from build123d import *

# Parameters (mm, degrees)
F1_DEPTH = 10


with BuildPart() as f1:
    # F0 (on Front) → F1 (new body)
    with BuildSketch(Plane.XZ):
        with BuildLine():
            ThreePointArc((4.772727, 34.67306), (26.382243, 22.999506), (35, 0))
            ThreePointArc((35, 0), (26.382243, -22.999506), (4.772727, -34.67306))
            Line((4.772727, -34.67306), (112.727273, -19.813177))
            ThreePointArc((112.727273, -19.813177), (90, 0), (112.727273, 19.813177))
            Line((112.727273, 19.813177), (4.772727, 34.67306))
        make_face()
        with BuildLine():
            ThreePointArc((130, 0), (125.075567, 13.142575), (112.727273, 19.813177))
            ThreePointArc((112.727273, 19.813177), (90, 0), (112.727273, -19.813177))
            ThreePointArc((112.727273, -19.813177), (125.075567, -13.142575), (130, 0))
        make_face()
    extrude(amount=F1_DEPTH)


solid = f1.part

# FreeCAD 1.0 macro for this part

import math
import FreeCAD as App
import Part
import Sketcher

V = App.Vector
Q = App.Units.Quantity

doc = App.newDocument("Part")
body = doc.addObject("PartDesign::Body", "Body")

# Sketch on XZ plane
sketch1 = body.newObject("Sketcher::SketchObject", "Sketch")
sketch1.AttachmentSupport = (doc.getObject("XZ_Plane"), [""])
sketch1.MapMode = "FlatFace"
sketch1.addGeometry(Part.ArcOfCircle(Part.Circle(V(0.000001, 0.000001, 0), V(0, 0, 1), 34.999999), math.radians(-0.000001), math.radians(82.162522)), False)
sketch1.addGeometry(Part.ArcOfCircle(Part.Circle(V(0.000001, -0.000001, 0), V(0, 0, 1), 34.999999), math.radians(-82.162522), math.radians(0.000001)), False)
sketch1.addGeometry(Part.LineSegment(V(4.772727, -34.67306, 0), V(112.727273, -19.813177, 0)), False)
sketch1.addGeometry(Part.ArcOfCircle(Part.Circle(V(110, 0, 0), V(0, 0, 1), 20), math.radians(-82.162519), math.radians(0)), False)
sketch1.addGeometry(Part.ArcOfCircle(Part.Circle(V(110, 0, 0), V(0, 0, 1), 20), math.radians(0), math.radians(82.162519)), False)
sketch1.addGeometry(Part.LineSegment(V(112.727273, 19.813177, 0), V(4.772727, 34.67306, 0)), False)
sketch1.addConstraint(Sketcher.Constraint("Tangent", 0, 1, 1, 2))
sketch1.addConstraint(Sketcher.Constraint("Tangent", 1, 1, 2, 1))
sketch1.addConstraint(Sketcher.Constraint("Tangent", 2, 2, 3, 1))
sketch1.addConstraint(Sketcher.Constraint("Tangent", 3, 2, 4, 1))
sketch1.addConstraint(Sketcher.Constraint("Tangent", 4, 2, 5, 1))
sketch1.addConstraint(Sketcher.Constraint("Tangent", 5, 2, 0, 2))
sketch1.addConstraint(Sketcher.Constraint("Coincident", 0, 3, -1, 1))
sketch1.addConstraint(Sketcher.Constraint("Equal", 0, 1))
sketch1.addConstraint(Sketcher.Constraint("Equal", 3, 4))
sketch1.addConstraint(Sketcher.Constraint("PointOnObject", 3, 3, -1))
sketch1.addConstraint(Sketcher.Constraint("PointOnObject", 0, 1, -1))
sketch1.addConstraint(Sketcher.Constraint("PointOnObject", 3, 2, -1))
sketch1.addConstraint(Sketcher.Constraint("Radius", 0, Q("34.999999 mm")))
sketch1.addConstraint(Sketcher.Constraint("Radius", 3, Q("20 mm")))
sketch1.addConstraint(Sketcher.Constraint("DistanceX", -1, 1, 3, 3, Q("110 mm")))
pad1 = body.newObject("PartDesign::Pad", "Pad")
pad1.Profile = sketch1
pad1.Length = 10

doc.recompute()
